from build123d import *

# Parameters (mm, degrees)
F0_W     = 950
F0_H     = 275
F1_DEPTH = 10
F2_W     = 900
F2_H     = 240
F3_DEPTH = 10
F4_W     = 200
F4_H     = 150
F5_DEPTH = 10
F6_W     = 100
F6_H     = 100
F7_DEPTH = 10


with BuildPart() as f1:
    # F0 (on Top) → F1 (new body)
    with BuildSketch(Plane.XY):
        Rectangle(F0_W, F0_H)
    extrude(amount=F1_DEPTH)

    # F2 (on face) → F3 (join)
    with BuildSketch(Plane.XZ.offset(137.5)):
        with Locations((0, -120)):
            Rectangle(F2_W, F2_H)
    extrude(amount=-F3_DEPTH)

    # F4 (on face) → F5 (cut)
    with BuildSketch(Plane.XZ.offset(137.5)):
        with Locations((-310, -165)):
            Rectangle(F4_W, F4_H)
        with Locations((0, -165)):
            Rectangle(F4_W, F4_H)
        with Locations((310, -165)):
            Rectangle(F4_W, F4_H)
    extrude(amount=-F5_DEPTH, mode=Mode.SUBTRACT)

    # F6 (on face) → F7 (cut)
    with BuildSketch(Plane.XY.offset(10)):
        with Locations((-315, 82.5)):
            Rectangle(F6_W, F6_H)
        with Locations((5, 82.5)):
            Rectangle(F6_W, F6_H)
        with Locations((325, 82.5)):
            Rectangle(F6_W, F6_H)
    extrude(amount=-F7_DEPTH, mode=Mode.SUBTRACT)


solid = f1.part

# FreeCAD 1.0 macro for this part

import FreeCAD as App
import Part
import Sketcher
Q = App.Units.Quantity


def add_polygon(sketch, points):
    """Adds a closed chain of lines whose ends are joined by coincident constraints."""
    first, n = sketch.GeometryCount, len(points)
    for a, b in zip(points, points[1:] + points[:1]):
        sketch.addGeometry(Part.LineSegment(App.Vector(*a, 0), App.Vector(*b, 0)), False)
    for i in range(n):
        sketch.addConstraint(Sketcher.Constraint("Coincident", first + i, 2, first + (i + 1) % n, 1))

doc = App.newDocument("Part")
body = doc.addObject("PartDesign::Body", "Body")

sketch1 = body.newObject("Sketcher::SketchObject", "Sketch")
sketch1.AttachmentSupport = (doc.getObject("XY_Plane"), [""])
sketch1.MapMode = "FlatFace"
add_polygon(sketch1, [(-475, 138), (-475, -138), (475, -138), (475, 138)])
sketch1.addConstraint([
    Sketcher.Constraint("Vertical", 0),
    Sketcher.Constraint("Horizontal", 1),
    Sketcher.Constraint("Vertical", 2),
    Sketcher.Constraint("Horizontal", 3),
    Sketcher.Constraint("Symmetric", 0, 2, 2, 2, -1, 1),
    Sketcher.Constraint("DistanceX", 1, 1, 1, 2, Q("950 mm")),
    Sketcher.Constraint("DistanceY", 0, 2, 0, 1, Q("275 mm")),
])
pad1 = body.newObject("PartDesign::Pad", "Pad")
pad1.Profile = sketch1
pad1.Length = 10

sketch2 = body.newObject("Sketcher::SketchObject", "Sketch001")
sketch2.AttachmentSupport = (doc.getObject("XZ_Plane"), [""])
sketch2.MapMode = "FlatFace"
sketch2.AttachmentOffset = App.Placement(App.Vector(0, 0, 137.5), App.Rotation())
add_polygon(sketch2, [(-450, 0), (-450, -240), (450, -240), (450, 0)])
sketch2.addConstraint([
    Sketcher.Constraint("Vertical", 0),
    Sketcher.Constraint("Horizontal", 1),
    Sketcher.Constraint("Vertical", 2),
    Sketcher.Constraint("Horizontal", 3),
    Sketcher.Constraint("Symmetric", 2, 2, 3, 2, -1, 1),
    Sketcher.Constraint("DistanceX", 1, 1, 1, 2, Q("900 mm")),
    Sketcher.Constraint("DistanceY", 0, 2, 0, 1, Q("240 mm")),
])
pad2 = body.newObject("PartDesign::Pad", "Pad001")
pad2.Profile = sketch2
pad2.Length = 10
pad2.Reversed = True

sketch3 = body.newObject("Sketcher::SketchObject", "Sketch002")
sketch3.AttachmentSupport = (doc.getObject("XZ_Plane"), [""])
sketch3.MapMode = "FlatFace"
sketch3.AttachmentOffset = App.Placement(App.Vector(0, 0, 137.5), App.Rotation())
add_polygon(sketch3, [(-410, -90), (-410, -240), (-210, -240), (-210, -90)])
add_polygon(sketch3, [(-100, -90), (-100, -240), (100, -240), (100, -90)])
add_polygon(sketch3, [(210, -90), (210, -240), (410, -240), (410, -90)])
sketch3.addConstraint([
    Sketcher.Constraint("Vertical", 0),
    Sketcher.Constraint("Horizontal", 1),
    Sketcher.Constraint("Vertical", 2),
    Sketcher.Constraint("Horizontal", 3),
    Sketcher.Constraint("Vertical", 4),
    Sketcher.Constraint("Horizontal", 5),
    Sketcher.Constraint("Vertical", 6),
    Sketcher.Constraint("Horizontal", 7),
    Sketcher.Constraint("Vertical", 8),
    Sketcher.Constraint("Horizontal", 9),
    Sketcher.Constraint("Vertical", 10),
    Sketcher.Constraint("Horizontal", 11),
    Sketcher.Constraint("Symmetric", 1, 2, 8, 2, -2),
    Sketcher.Constraint("Symmetric", 3, 2, 10, 2, -2),
    Sketcher.Constraint("Horizontal", 1, 2, 4, 2),
    Sketcher.Constraint("Horizontal", 3, 2, 6, 2),
    Sketcher.Constraint("Equal", 3, 5),
    Sketcher.Constraint("DistanceX", 1, 1, 1, 2, Q("200 mm")),
    Sketcher.Constraint("DistanceY", 0, 2, 0, 1, Q("150 mm")),
    Sketcher.Constraint("DistanceX", 0, 2, -1, 1, Q("410 mm")),
    Sketcher.Constraint("DistanceY", 0, 2, -1, 1, Q("240 mm")),
    Sketcher.Constraint("DistanceX", 4, 2, -1, 1, Q("100 mm")),
])
pocket1 = body.newObject("PartDesign::Pocket", "Pocket")
pocket1.Profile = sketch3
pocket1.Length = 10

sketch4 = body.newObject("Sketcher::SketchObject", "Sketch003")
sketch4.AttachmentSupport = (doc.getObject("XY_Plane"), [""])
sketch4.MapMode = "FlatFace"
sketch4.AttachmentOffset = App.Placement(App.Vector(0, 0, 10), App.Rotation())
add_polygon(sketch4, [(-365, 132), (-365, 32), (-265, 32), (-265, 132)])
add_polygon(sketch4, [(-45, 132), (-45, 32), (55, 32), (55, 132)])
add_polygon(sketch4, [(275, 132), (275, 32), (375, 32), (375, 132)])
sketch4.addConstraint([
    Sketcher.Constraint("Vertical", 0),
    Sketcher.Constraint("Horizontal", 1),
    Sketcher.Constraint("Vertical", 2),
    Sketcher.Constraint("Horizontal", 3),
    Sketcher.Constraint("Vertical", 4),
    Sketcher.Constraint("Horizontal", 5),
    Sketcher.Constraint("Vertical", 6),
    Sketcher.Constraint("Horizontal", 7),
    Sketcher.Constraint("Vertical", 8),
    Sketcher.Constraint("Horizontal", 9),
    Sketcher.Constraint("Vertical", 10),
    Sketcher.Constraint("Horizontal", 11),
    Sketcher.Constraint("Horizontal", 1, 2, 4, 2),
    Sketcher.Constraint("Horizontal", 3, 2, 6, 2),
    Sketcher.Constraint("Horizontal", 5, 2, 8, 2),
    Sketcher.Constraint("Horizontal", 7, 2, 10, 2),
    Sketcher.Constraint("Equal", 3, 5),
    Sketcher.Constraint("Equal", 7, 9),
    Sketcher.Constraint("Equal", 11, 0),
    Sketcher.Constraint("DistanceX", 1, 1, 1, 2, Q("100 mm")),
    Sketcher.Constraint("DistanceX", 0, 2, -1, 1, Q("365 mm")),
    Sketcher.Constraint("DistanceX", 4, 2, -1, 1, Q("45 mm")),
    Sketcher.Constraint("DistanceX", -1, 1, 8, 2, Q("275 mm")),
    Sketcher.Constraint("DistanceY", -1, 1, 0, 2, Q("32.5 mm")),
])
pocket2 = body.newObject("PartDesign::Pocket", "Pocket001")
pocket2.Profile = sketch4
pocket2.Length = 10

doc.recompute()
